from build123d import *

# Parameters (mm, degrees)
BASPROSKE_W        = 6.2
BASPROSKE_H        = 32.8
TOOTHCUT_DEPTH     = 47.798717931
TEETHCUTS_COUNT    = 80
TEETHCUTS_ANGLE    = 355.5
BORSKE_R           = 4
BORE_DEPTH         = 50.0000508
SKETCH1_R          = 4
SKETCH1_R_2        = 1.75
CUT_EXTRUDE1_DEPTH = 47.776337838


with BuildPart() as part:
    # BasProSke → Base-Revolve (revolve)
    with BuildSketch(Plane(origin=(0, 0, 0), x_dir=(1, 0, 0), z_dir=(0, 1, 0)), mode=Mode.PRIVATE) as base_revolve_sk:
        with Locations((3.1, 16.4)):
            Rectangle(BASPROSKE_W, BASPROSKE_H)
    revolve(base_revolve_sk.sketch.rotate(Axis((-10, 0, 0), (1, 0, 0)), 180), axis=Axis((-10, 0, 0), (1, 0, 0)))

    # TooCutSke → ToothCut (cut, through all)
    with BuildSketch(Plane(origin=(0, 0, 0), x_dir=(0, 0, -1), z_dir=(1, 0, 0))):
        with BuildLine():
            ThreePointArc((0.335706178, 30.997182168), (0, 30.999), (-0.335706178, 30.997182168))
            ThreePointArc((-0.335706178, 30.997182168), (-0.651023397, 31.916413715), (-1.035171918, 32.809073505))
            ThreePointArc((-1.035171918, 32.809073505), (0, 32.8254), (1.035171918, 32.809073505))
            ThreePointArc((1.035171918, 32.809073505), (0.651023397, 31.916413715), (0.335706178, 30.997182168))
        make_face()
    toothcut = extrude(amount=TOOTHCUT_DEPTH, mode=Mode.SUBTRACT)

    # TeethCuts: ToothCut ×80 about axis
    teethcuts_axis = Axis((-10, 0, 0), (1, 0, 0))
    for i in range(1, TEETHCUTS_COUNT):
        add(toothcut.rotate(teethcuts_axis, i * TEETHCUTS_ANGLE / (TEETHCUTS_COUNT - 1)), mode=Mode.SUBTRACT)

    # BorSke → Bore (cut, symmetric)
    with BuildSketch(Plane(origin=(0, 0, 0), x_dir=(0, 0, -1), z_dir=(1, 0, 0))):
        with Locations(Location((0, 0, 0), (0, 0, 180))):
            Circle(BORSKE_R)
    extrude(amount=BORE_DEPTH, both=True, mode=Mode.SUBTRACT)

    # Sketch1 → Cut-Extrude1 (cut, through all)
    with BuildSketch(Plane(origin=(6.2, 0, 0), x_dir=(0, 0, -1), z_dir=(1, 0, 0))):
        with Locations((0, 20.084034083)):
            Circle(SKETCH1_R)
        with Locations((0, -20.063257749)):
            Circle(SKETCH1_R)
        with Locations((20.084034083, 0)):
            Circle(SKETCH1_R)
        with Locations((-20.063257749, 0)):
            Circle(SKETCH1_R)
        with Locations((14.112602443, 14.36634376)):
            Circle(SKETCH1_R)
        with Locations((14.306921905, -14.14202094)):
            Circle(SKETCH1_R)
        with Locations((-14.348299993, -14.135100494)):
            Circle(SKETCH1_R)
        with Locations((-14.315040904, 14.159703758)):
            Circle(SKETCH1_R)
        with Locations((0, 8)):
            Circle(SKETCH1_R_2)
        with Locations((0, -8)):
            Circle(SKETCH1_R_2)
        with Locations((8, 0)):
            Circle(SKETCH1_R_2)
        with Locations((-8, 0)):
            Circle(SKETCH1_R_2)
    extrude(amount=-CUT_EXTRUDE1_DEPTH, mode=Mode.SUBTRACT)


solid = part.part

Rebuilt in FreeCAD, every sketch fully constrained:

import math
import FreeCAD as App
import Part
import Sketcher
from FreeCAD import Vector

doc = App.newDocument("Part")
params = doc.addObject("Spreadsheet::Sheet", "Params")
for row, (alias, value) in enumerate([
    ("sketch1_width", "6.2 mm"),
    ("sketch1_height", "32.8 mm"),
    ("revolution_angle", "360 deg"),
    ("sketch2_radius", "12.8 mm"),
    ("sketch3_diameter", "8 mm"),
    ("pocket2_length", "100.000102 mm"),
    ("sketch4_diameter", "8 mm"),
    ("sketch4_diameter2", "3.5 mm"),
], start=1):
    params.set(f"A{row}", alias)
    params.set(f"B{row}", "=" + value)
    params.setAlias(f"B{row}", alias)

body = doc.addObject("PartDesign::Body", "Body")

# Sketch on XZ plane
sketch1 = body.newObject("Sketcher::SketchObject", "Sketch")
sketch1.AttachmentSupport = (doc.getObject("XZ_Plane"), [""])
sketch1.MapMode = "FlatFace"
sketch1.addGeometry(Part.LineSegment(Vector(0, -32.8, 0), Vector(0, 0, 0)), False)
sketch1.addGeometry(Part.LineSegment(Vector(0, 0, 0), Vector(6.2, 0, 0)), False)
sketch1.addGeometry(Part.LineSegment(Vector(6.2, 0, 0), Vector(6.2, -32.8, 0)), False)
sketch1.addGeometry(Part.LineSegment(Vector(6.2, -32.8, 0), Vector(0, -32.8, 0)), False)
sketch1.addConstraint(Sketcher.Constraint("Coincident", 0, 2, 1, 1))
sketch1.addConstraint(Sketcher.Constraint("Coincident", 1, 2, 2, 1))
sketch1.addConstraint(Sketcher.Constraint("Coincident", 2, 2, 3, 1))
sketch1.addConstraint(Sketcher.Constraint("Coincident", 3, 2, 0, 1))
sketch1.addConstraint(Sketcher.Constraint("Vertical", 0))
sketch1.addConstraint(Sketcher.Constraint("Horizontal", 1))
sketch1.addConstraint(Sketcher.Constraint("Vertical", 2))
sketch1.addConstraint(Sketcher.Constraint("Horizontal", 3))
sketch1.addConstraint(Sketcher.Constraint("Coincident", 0, 2, -1, 1))
sketch1.addConstraint(Sketcher.Constraint("DistanceX", 1, 1, 1, 2, 6.2))
sketch1.addConstraint(Sketcher.Constraint("DistanceY", 0, 1, 0, 2, 32.8))
sketch1.setExpression("Constraints[9]", "Params.sketch1_width")
sketch1.setExpression("Constraints[10]", "Params.sketch1_height")
revolution = body.newObject("PartDesign::Revolution", "Revolution")
revolution.Profile = sketch1
revolution.ReferenceAxis = (sketch1, ["H_Axis"])
revolution.setExpression("Angle", "Params.revolution_angle")

# Sketch on YZ plane
sketch2 = body.newObject("Sketcher::SketchObject", "Sketch001")
sketch2.AttachmentSupport = (doc.getObject("YZ_Plane"), [""])
sketch2.MapMode = "FlatFace"
sketch2.addGeometry(Part.ArcOfCircle(Part.Circle(Vector(0.000002, 0, 0), Vector(0, 0, 1), 30.998998), math.radians(-0.620501), math.radians(0.620501)), False)
sketch2.addGeometry(Part.ArcOfCircle(Part.Circle(Vector(27.306647, -12.592131, 0), Vector(0, 0, 1), 12.8), math.radians(64.540243), math.radians(73.242415)), False)
sketch2.addGeometry(Part.ArcOfCircle(Part.Circle(Vector(0, 0, 0), Vector(0, 0, 1), 32.8254), math.radians(-1.807162), math.radians(1.807162)), False)
sketch2.addGeometry(Part.ArcOfCircle(Part.Circle(Vector(27.306647, 12.592131, 0), Vector(0, 0, 1), 12.8), math.radians(-73.242415), math.radians(-64.540243)), False)
sketch2.addConstraint(Sketcher.Constraint("Coincident", 0, 1, 1, 2))
sketch2.addConstraint(Sketcher.Constraint("Coincident", 1, 1, 2, 1))
sketch2.addConstraint(Sketcher.Constraint("Coincident", 2, 2, 3, 2))
sketch2.addConstraint(Sketcher.Constraint("Coincident", 3, 1, 0, 2))
sketch2.addConstraint(Sketcher.Constraint("Coincident", 0, 3, -1, 1))
sketch2.addConstraint(Sketcher.Constraint("Coincident", 2, 3, -1, 1))
sketch2.addConstraint(Sketcher.Constraint("Equal", 1, 3))
sketch2.addConstraint(Sketcher.Constraint("Symmetric", 1, 3, 3, 3, -1))
sketch2.addConstraint(Sketcher.Constraint("Radius", 1, 12.8))
sketch2.addConstraint(Sketcher.Constraint("Radius", 0, 30.998998))
sketch2.addConstraint(Sketcher.Constraint("Radius", 2, 32.8254))
sketch2.addConstraint(Sketcher.Constraint("DistanceY", 1, 3, -1, 1, 12.592131))
sketch2.addConstraint(Sketcher.Constraint("DistanceY", 1, 1, -1, 1, 1.035172))
sketch2.setExpression("Constraints[8]", "Params.sketch2_radius")
pocket1 = body.newObject("PartDesign::Pocket", "Pocket")
pocket1.Profile = sketch2
pocket1.Type = "ThroughAll"
pocket1.Reversed = True
doc.recompute()

polarpattern = body.newObject("PartDesign::PolarPattern", "PolarPattern")
polarpattern.Originals = [pocket1]
polarpattern.Axis = (doc.getObject("X_Axis"), [""])
polarpattern.Angle = 360
polarpattern.Occurrences = 80
body.Tip = polarpattern

# Sketch on YZ plane
sketch3 = body.newObject("Sketcher::SketchObject", "Sketch002")
sketch3.AttachmentSupport = (doc.getObject("YZ_Plane"), [""])
sketch3.MapMode = "FlatFace"
sketch3.addGeometry(Part.Circle(Vector(0, 0, 0), Vector(0, 0, 1), 4), False)
sketch3.addConstraint(Sketcher.Constraint("Coincident", 0, 3, -1, 1))
sketch3.addConstraint(Sketcher.Constraint("Diameter", 0, 8.0))
sketch3.setExpression("Constraints[1]", "Params.sketch3_diameter")
pocket2 = body.newObject("PartDesign::Pocket", "Pocket001")
pocket2.Profile = sketch3
pocket2.setExpression("Length", "Params.pocket2_length")
pocket2.Midplane = True

# Sketch on YZ plane
sketch4 = body.newObject("Sketcher::SketchObject", "Sketch003")
sketch4.AttachmentSupport = (doc.getObject("YZ_Plane"), [""])
sketch4.MapMode = "FlatFace"
sketch4.AttachmentOffset = App.Placement(Vector(0, 0, 6.2), App.Rotation())
sketch4.addGeometry(Part.Circle(Vector(20.084034, 0, 0), Vector(0, 0, 1), 4), False)
sketch4.addGeometry(Part.Circle(Vector(-20.063258, 0, 0), Vector(0, 0, 1), 4), False)
sketch4.addGeometry(Part.Circle(Vector(0, -20.084034, 0), Vector(0, 0, 1), 4), False)
sketch4.addGeometry(Part.Circle(Vector(0, 20.063258, 0), Vector(0, 0, 1), 4), False)
sketch4.addGeometry(Part.Circle(Vector(14.366344, -14.112602, 0), Vector(0, 0, 1), 4), False)
sketch4.addGeometry(Part.Circle(Vector(-14.142021, -14.306922, 0), Vector(0, 0, 1), 4), False)
sketch4.addGeometry(Part.Circle(Vector(-14.1351, 14.3483, 0), Vector(0, 0, 1), 4), False)
sketch4.addGeometry(Part.Circle(Vector(14.159704, 14.315041, 0), Vector(0, 0, 1), 4), False)
sketch4.addGeometry(Part.Circle(Vector(8, 0, 0), Vector(0, 0, 1), 1.75), False)
sketch4.addGeometry(Part.Circle(Vector(-8, 0, 0), Vector(0, 0, 1), 1.75), False)
sketch4.addGeometry(Part.Circle(Vector(0, -8, 0), Vector(0, 0, 1), 1.75), False)
sketch4.addGeometry(Part.Circle(Vector(0, 8, 0), Vector(0, 0, 1), 1.75), False)
sketch4.addConstraint(Sketcher.Constraint("Equal", 0, 1))
sketch4.addConstraint(Sketcher.Constraint("Equal", 1, 2))
sketch4.addConstraint(Sketcher.Constraint("Equal", 2, 3))
sketch4.addConstraint(Sketcher.Constraint("Equal", 3, 4))
sketch4.addConstraint(Sketcher.Constraint("Equal", 4, 5))
sketch4.addConstraint(Sketcher.Constraint("Equal", 5, 6))
sketch4.addConstraint(Sketcher.Constraint("Equal", 6, 7))
sketch4.addConstraint(Sketcher.Constraint("Equal", 8, 9))
sketch4.addConstraint(Sketcher.Constraint("Equal", 9, 10))
sketch4.addConstraint(Sketcher.Constraint("Equal", 10, 11))
sketch4.addConstraint(Sketcher.Constraint("Symmetric", 8, 3, 9, 3, -1, 1))
sketch4.addConstraint(Sketcher.Constraint("Symmetric", 10, 3, 11, 3, -1, 1))
sketch4.addConstraint(Sketcher.Constraint("PointOnObject", 0, 3, -1))
sketch4.addConstraint(Sketcher.Constraint("PointOnObject", 1, 3, -1))
sketch4.addConstraint(Sketcher.Constraint("PointOnObject", 2, 3, -2))
sketch4.addConstraint(Sketcher.Constraint("PointOnObject", 3, 3, -2))
sketch4.addConstraint(Sketcher.Constraint("PointOnObject", 8, 3, -1))
sketch4.addConstraint(Sketcher.Constraint("PointOnObject", 10, 3, -2))
sketch4.addConstraint(Sketcher.Constraint("Diameter", 0, 8.0))
sketch4.addConstraint(Sketcher.Constraint("Diameter", 8, 3.5))
sketch4.addConstraint(Sketcher.Constraint("DistanceX", -1, 1, 8, 3, 8.0))
sketch4.addConstraint(Sketcher.Constraint("DistanceY", 10, 3, -1, 1, 8.0))
sketch4.addConstraint(Sketcher.Constraint("DistanceX", 6, 3, -1, 1, 14.1351))
sketch4.addConstraint(Sketcher.Constraint("DistanceY", -1, 1, 6, 3, 14.3483))
sketch4.addConstraint(Sketcher.Constraint("DistanceX", 1, 3, 4, 3, 34.429602))
sketch4.addConstraint(Sketcher.Constraint("DistanceX", 5, 3, -1, 1, 14.142021))
sketch4.addConstraint(Sketcher.Constraint("DistanceY", 5, 3, -1, 1, 14.306922))
sketch4.addConstraint(Sketcher.Constraint("DistanceY", -1, 1, 7, 3, 14.315041))
sketch4.addConstraint(Sketcher.Constraint("DistanceX", 1, 3, 0, 3, 40.147292))
sketch4.addConstraint(Sketcher.Constraint("DistanceY", 2, 3, 3, 3, 40.147292))
sketch4.addConstraint(Sketcher.Constraint("DistanceY", 2, 3, 4, 3, 5.971432))
sketch4.addConstraint(Sketcher.Constraint("DistanceY", 5, 3, 4, 3, 0.194319))
sketch4.addConstraint(Sketcher.Constraint("DistanceX", 7, 3, 0, 3, 5.92433))
sketch4.addConstraint(Sketcher.Constraint("DistanceX", -1, 1, 0, 3, 20.084034))
sketch4.setExpression("Constraints[18]", "Params.sketch4_diameter")
sketch4.setExpression("Constraints[19]", "Params.sketch4_diameter2")
pocket3 = body.newObject("PartDesign::Pocket", "Pocket002")
pocket3.Profile = sketch4
pocket3.Type = "ThroughAll"

doc.recompute()
